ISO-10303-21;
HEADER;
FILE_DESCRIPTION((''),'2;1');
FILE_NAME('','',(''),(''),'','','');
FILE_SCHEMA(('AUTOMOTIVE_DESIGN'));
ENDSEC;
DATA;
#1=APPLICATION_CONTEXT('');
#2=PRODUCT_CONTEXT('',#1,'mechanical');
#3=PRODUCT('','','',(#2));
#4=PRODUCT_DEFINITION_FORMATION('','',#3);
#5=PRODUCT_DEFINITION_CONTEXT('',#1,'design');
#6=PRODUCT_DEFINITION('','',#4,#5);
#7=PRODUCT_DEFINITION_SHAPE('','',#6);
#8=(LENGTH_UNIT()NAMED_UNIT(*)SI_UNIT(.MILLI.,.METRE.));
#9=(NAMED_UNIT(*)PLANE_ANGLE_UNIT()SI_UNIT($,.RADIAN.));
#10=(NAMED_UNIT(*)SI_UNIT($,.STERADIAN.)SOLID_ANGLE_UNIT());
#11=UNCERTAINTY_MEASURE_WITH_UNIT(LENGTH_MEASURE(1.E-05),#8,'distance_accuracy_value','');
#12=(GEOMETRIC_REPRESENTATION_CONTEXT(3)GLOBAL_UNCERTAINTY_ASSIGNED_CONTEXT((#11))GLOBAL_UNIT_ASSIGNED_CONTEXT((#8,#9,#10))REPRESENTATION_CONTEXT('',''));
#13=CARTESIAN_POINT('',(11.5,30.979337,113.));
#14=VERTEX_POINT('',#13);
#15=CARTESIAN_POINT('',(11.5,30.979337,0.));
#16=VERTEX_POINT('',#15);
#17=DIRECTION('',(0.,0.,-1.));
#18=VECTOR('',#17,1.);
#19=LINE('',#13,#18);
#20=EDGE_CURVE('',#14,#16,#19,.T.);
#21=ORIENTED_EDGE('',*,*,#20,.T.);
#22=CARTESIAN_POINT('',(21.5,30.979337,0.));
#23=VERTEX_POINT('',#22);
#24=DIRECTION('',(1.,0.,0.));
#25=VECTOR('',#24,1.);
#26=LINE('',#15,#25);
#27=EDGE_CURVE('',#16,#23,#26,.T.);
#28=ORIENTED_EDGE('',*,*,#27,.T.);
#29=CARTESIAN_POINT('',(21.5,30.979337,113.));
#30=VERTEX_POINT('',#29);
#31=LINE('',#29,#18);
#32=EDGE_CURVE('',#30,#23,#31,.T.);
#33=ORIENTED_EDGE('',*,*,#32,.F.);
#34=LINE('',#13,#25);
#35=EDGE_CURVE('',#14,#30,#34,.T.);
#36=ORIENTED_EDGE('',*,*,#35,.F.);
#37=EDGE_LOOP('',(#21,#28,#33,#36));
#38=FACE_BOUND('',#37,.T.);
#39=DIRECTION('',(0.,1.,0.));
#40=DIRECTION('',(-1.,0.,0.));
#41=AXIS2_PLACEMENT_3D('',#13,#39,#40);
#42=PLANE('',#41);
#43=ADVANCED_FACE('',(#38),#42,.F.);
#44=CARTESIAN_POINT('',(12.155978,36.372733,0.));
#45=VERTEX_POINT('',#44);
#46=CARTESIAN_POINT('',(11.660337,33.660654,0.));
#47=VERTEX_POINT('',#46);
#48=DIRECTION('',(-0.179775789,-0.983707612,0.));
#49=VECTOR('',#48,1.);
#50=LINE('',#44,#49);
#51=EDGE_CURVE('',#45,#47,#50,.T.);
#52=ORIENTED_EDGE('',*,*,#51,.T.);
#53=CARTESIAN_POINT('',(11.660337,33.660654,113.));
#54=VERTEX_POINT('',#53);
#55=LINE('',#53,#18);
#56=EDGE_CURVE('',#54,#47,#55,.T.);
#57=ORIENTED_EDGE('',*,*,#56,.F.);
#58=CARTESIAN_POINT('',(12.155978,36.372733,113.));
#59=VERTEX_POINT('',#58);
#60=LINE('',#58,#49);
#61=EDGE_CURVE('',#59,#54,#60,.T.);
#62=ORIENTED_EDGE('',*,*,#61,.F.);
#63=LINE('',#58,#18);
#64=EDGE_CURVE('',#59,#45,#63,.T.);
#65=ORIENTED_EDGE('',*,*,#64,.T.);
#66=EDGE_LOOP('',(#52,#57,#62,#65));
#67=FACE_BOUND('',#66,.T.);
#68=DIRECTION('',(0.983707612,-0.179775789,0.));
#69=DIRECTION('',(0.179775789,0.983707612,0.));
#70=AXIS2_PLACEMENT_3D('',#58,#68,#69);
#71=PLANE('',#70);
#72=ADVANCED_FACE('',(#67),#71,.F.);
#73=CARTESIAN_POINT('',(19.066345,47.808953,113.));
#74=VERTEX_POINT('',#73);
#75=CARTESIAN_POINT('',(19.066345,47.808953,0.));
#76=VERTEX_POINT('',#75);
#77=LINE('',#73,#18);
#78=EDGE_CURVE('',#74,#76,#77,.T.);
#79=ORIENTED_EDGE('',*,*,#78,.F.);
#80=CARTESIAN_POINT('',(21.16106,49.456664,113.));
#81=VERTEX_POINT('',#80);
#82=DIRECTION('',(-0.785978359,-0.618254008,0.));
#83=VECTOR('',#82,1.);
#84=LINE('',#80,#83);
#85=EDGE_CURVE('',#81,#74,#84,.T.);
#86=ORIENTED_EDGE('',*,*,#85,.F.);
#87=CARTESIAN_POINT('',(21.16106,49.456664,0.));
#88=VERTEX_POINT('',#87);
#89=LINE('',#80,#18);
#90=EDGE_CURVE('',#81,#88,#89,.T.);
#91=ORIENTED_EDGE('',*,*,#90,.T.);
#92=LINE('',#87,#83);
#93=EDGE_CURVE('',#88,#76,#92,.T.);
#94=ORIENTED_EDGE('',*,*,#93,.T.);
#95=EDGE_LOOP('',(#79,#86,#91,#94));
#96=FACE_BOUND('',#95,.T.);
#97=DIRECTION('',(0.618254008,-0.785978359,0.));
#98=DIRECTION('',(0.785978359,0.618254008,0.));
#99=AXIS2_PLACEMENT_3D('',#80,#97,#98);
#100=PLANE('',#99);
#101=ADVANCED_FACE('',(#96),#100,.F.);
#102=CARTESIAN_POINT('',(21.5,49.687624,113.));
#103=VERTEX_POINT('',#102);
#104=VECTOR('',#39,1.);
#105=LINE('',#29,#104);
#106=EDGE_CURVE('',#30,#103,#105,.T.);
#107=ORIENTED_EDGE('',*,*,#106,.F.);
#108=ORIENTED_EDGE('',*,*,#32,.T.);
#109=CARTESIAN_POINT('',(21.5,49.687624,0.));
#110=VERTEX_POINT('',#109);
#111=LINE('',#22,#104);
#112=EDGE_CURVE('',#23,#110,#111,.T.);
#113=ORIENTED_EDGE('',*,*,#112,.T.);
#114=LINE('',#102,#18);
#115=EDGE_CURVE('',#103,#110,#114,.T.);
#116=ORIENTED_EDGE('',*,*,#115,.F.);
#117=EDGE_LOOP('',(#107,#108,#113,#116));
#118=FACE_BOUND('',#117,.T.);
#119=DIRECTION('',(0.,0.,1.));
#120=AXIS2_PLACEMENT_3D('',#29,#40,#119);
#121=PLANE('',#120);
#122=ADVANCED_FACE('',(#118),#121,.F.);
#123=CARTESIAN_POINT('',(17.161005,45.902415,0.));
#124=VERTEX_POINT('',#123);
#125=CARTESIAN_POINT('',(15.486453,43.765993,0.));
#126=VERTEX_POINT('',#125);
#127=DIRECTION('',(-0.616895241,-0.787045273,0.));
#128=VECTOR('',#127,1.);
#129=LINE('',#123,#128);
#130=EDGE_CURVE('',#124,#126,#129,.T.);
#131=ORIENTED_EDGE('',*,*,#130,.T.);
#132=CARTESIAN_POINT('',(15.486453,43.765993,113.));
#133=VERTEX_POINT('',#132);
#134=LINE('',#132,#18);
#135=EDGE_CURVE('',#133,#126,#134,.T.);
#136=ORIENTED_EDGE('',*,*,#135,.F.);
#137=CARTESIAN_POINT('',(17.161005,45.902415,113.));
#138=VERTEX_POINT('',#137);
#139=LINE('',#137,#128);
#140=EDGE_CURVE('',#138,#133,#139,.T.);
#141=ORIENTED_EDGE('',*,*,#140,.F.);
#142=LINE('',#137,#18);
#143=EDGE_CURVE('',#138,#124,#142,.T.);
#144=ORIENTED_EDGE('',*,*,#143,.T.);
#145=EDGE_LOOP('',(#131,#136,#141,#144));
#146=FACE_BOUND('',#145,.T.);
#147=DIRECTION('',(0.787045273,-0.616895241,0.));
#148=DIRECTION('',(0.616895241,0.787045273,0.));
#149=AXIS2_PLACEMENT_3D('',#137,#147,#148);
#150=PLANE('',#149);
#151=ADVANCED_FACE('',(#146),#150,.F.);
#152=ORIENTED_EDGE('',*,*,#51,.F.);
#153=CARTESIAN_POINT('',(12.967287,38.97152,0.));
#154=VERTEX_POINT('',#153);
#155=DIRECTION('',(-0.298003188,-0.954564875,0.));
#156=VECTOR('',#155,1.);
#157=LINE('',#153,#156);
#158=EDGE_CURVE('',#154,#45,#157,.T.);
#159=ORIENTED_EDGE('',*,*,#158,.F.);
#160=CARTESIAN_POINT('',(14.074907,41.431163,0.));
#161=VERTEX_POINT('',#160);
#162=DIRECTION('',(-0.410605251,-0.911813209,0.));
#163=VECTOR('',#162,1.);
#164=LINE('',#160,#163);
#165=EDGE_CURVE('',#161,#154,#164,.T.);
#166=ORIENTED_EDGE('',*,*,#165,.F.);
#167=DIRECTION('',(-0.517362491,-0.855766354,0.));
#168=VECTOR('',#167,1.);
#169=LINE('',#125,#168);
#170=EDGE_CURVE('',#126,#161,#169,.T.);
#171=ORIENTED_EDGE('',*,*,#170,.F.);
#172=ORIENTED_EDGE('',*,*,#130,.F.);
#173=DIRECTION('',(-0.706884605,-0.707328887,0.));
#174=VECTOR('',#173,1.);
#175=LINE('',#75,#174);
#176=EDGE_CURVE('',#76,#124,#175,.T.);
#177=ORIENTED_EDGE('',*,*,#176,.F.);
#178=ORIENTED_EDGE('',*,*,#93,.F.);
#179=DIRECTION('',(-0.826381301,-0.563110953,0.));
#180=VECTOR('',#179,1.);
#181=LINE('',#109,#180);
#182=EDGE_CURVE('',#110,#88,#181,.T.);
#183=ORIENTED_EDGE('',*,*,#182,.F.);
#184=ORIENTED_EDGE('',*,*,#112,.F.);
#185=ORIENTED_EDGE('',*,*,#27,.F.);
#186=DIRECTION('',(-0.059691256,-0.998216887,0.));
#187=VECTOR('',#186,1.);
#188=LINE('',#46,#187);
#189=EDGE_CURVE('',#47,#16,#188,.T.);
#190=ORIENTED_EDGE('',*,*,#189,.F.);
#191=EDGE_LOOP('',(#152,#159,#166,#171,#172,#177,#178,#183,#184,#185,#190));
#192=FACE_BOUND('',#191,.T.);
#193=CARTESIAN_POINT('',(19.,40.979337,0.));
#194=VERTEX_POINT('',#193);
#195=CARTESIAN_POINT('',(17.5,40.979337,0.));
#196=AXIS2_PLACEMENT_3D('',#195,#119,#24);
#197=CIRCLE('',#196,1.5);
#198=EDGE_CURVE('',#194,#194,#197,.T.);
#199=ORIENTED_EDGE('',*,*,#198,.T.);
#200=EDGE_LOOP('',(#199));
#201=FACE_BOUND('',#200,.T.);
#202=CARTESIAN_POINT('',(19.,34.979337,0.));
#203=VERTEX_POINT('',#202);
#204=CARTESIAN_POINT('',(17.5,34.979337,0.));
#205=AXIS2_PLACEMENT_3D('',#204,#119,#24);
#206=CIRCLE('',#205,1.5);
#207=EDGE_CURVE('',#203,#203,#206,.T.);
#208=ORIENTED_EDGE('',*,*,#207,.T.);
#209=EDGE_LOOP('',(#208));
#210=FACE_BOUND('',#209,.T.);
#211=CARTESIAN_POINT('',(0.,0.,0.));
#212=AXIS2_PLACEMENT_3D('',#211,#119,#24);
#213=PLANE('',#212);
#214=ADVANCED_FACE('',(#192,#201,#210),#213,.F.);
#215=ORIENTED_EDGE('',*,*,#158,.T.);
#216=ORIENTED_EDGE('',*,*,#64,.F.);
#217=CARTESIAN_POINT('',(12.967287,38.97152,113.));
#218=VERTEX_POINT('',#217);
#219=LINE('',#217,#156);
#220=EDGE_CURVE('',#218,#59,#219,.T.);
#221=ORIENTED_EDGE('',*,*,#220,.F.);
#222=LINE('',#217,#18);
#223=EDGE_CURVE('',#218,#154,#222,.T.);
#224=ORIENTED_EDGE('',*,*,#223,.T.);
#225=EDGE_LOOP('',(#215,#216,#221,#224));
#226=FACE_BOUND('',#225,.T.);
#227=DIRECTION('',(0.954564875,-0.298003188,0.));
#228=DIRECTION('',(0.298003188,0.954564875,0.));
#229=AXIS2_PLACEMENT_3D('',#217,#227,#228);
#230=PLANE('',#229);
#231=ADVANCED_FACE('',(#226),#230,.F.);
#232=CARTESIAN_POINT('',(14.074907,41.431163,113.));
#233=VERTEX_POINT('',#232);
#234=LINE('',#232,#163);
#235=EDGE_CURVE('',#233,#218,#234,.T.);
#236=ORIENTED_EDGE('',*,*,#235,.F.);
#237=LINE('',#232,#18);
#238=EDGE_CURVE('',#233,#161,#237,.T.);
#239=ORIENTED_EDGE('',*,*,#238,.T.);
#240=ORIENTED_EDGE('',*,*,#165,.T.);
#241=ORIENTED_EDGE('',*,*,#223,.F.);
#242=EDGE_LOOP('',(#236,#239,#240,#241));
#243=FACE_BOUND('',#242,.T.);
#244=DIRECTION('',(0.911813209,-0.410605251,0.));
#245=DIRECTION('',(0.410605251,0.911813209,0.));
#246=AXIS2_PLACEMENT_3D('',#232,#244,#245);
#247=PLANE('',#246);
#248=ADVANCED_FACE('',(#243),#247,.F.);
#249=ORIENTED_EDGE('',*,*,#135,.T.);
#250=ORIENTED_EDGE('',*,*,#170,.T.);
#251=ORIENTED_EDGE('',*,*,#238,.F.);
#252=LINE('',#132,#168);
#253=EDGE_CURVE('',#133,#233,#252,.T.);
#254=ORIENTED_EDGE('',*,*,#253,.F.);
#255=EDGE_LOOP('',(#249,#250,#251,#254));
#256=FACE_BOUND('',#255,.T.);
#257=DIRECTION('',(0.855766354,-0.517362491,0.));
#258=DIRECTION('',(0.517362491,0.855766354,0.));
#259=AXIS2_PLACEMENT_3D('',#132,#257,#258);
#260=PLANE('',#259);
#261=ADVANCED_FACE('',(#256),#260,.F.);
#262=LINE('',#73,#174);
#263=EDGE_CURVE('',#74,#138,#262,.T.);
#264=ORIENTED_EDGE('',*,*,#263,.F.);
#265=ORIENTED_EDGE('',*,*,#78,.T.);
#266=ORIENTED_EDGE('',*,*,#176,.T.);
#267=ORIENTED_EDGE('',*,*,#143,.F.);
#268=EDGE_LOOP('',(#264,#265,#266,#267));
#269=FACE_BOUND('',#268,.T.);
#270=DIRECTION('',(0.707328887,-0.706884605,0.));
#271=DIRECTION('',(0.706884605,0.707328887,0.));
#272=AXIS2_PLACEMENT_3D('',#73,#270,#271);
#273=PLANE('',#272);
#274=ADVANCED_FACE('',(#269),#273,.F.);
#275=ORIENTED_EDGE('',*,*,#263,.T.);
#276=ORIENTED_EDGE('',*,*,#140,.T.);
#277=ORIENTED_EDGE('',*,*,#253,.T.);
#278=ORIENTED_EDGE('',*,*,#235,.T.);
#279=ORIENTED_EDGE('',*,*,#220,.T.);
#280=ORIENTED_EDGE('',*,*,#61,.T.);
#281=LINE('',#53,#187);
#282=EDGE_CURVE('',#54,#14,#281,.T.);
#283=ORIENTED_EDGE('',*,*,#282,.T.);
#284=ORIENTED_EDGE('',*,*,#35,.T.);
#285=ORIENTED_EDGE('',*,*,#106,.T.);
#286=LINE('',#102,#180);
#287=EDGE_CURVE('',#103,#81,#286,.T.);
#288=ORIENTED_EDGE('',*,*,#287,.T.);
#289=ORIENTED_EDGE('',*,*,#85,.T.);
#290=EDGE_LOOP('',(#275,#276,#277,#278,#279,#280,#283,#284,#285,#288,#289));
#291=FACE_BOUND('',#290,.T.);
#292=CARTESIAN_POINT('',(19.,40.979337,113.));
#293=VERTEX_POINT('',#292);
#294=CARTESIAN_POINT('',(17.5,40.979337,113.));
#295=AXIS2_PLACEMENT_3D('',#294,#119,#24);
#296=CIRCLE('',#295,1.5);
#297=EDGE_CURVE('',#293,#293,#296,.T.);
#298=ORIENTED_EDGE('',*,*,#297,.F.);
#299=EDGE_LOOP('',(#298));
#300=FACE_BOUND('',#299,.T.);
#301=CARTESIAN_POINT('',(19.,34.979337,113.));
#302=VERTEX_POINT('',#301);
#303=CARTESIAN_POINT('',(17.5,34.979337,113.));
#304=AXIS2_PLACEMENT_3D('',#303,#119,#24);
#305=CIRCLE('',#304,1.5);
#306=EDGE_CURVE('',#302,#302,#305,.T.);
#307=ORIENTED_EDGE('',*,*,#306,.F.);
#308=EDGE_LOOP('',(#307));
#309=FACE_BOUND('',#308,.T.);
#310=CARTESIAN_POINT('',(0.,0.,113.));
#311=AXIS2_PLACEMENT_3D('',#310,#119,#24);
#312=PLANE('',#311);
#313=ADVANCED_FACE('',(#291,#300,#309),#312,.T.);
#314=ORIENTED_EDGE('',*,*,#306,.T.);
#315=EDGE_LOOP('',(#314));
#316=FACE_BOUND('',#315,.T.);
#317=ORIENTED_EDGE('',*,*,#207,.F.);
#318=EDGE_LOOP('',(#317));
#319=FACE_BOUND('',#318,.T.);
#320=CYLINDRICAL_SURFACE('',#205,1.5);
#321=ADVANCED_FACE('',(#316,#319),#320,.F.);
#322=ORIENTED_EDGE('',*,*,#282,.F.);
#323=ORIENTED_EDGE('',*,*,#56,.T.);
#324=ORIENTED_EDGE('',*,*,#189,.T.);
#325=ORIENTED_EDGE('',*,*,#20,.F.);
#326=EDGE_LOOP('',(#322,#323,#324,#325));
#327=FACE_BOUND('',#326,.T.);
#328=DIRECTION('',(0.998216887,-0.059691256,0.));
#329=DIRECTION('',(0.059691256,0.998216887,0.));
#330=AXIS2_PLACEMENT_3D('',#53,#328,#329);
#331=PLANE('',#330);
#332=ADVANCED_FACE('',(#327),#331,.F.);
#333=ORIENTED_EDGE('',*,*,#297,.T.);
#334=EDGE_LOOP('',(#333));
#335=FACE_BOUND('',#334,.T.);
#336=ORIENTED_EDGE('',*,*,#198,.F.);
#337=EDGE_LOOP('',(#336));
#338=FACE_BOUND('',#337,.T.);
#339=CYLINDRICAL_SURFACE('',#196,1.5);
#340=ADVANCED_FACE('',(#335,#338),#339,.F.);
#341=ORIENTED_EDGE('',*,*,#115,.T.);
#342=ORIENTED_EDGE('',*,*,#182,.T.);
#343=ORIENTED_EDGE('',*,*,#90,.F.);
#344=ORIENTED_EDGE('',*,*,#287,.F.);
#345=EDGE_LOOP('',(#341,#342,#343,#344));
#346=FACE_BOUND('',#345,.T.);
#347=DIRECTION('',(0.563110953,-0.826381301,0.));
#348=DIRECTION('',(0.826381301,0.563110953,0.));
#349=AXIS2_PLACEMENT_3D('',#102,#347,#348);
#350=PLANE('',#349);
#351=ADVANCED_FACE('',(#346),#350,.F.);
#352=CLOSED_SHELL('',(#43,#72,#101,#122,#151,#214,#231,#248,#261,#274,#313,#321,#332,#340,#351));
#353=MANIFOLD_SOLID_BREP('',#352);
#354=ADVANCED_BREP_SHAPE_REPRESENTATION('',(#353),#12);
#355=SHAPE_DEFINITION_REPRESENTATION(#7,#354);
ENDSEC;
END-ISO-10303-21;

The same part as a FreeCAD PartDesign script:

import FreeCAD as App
import Part
import Sketcher

V = App.Vector

doc = App.newDocument("Part")
params = doc.addObject("Spreadsheet::Sheet", "Params")
for row, (alias, value) in enumerate([
    ("sketch1_width", "10 mm"),
    ("pad1_length", "113 mm"),
    ("sketch2_diameter", "3 mm"),
    ("pocket1_length", "113 mm"),
], start=1):
    params.set(f"A{row}", alias)
    params.set(f"B{row}", "=" + value)
    params.setAlias(f"B{row}", alias)

body = doc.addObject("PartDesign::Body", "Body")

sketch1 = doc.addObject("Sketcher::SketchObject", "Sketch")
body.addObject(sketch1)
sketch1.AttachmentSupport = (doc.XY_Plane, [""])
sketch1.MapMode = "FlatFace"
sketch1.addGeometry([
    Part.LineSegment(V(11.5, 30.979337, 0), V(21.5, 30.979337, 0)),
    Part.LineSegment(V(21.5, 30.979337, 0), V(21.5, 49.687624, 0)),
    Part.LineSegment(V(21.5, 49.687624, 0), V(21.16106, 49.456664, 0)),
    Part.LineSegment(V(21.16106, 49.456664, 0), V(19.066345, 47.808953, 0)),
    Part.LineSegment(V(19.066345, 47.808953, 0), V(17.161005, 45.902415, 0)),
    Part.LineSegment(V(17.161005, 45.902415, 0), V(15.486453, 43.765993, 0)),
    Part.LineSegment(V(15.486453, 43.765993, 0), V(14.074907, 41.431163, 0)),
    Part.LineSegment(V(14.074907, 41.431163, 0), V(12.967287, 38.97152, 0)),
    Part.LineSegment(V(12.967287, 38.97152, 0), V(12.155978, 36.372733, 0)),
    Part.LineSegment(V(12.155978, 36.372733, 0), V(11.660337, 33.660654, 0)),
    Part.LineSegment(V(11.660337, 33.660654, 0), V(11.5, 30.979337, 0)),
], False)
sketch1.addConstraint([
    Sketcher.Constraint("Coincident", 0, 2, 1, 1),
    Sketcher.Constraint("Coincident", 1, 2, 2, 1),
    Sketcher.Constraint("Coincident", 2, 2, 3, 1),
    Sketcher.Constraint("Coincident", 3, 2, 4, 1),
    Sketcher.Constraint("Coincident", 4, 2, 5, 1),
    Sketcher.Constraint("Coincident", 5, 2, 6, 1),
    Sketcher.Constraint("Coincident", 6, 2, 7, 1),
    Sketcher.Constraint("Coincident", 7, 2, 8, 1),
    Sketcher.Constraint("Coincident", 8, 2, 9, 1),
    Sketcher.Constraint("Coincident", 9, 2, 10, 1),
    Sketcher.Constraint("Coincident", 10, 2, 0, 1),
    Sketcher.Constraint("Horizontal", 0),
    Sketcher.Constraint("Vertical", 1),
    Sketcher.Constraint("DistanceX", 0, 1, 0, 2, 10.0),
    Sketcher.Constraint("DistanceX", -1, 1, 0, 2, 21.5),
    Sketcher.Constraint("DistanceX", 6, 2, 4, 2, 3.086098),
    Sketcher.Constraint("DistanceY", 6, 2, 2, 2, 8.025502),
    Sketcher.Constraint("Distance", 2, 0.41015),
    Sketcher.Constraint("Distance", 6, 2.728351),
    Sketcher.Constraint("Distance", 7, 2.697529),
    Sketcher.Constraint("DistanceY", 1, 1, 1, 2, 18.708287),
    Sketcher.Constraint("DistanceX", -1, 1, 2, 2, 21.16106),
    Sketcher.Constraint("DistanceY", -1, 1, 7, 2, 38.97152),
    Sketcher.Constraint("DistanceX", -1, 1, 8, 2, 12.155978),
    Sketcher.Constraint("DistanceY", 3, 2, 2, 2, 1.647711),
    Sketcher.Constraint("DistanceX", 4, 2, 3, 2, 1.90534),
    Sketcher.Constraint("DistanceY", 4, 2, 2, 2, 3.554249),
    Sketcher.Constraint("DistanceX", 5, 2, 4, 2, 1.674552),
    Sketcher.Constraint("DistanceX", 7, 2, 6, 2, 1.10762),
    Sketcher.Constraint("DistanceX", 8, 2, 7, 2, 0.811309),
    Sketcher.Constraint("DistanceY", 8, 2, 6, 2, 5.058429),
    Sketcher.Constraint("DistanceX", 9, 2, 8, 2, 0.495641),
    Sketcher.Constraint("DistanceY", 9, 2, 8, 2, 2.712079),
])
sketch1.setExpression("Constraints[13]", "Params.sketch1_width")
pad1 = doc.addObject("PartDesign::Pad", "Pad")
body.addObject(pad1)
pad1.Profile = sketch1
pad1.setExpression("Length", "Params.pad1_length")

sketch2 = doc.addObject("Sketcher::SketchObject", "Sketch001")
body.addObject(sketch2)
sketch2.AttachmentSupport = (doc.XY_Plane, [""])
sketch2.MapMode = "FlatFace"
sketch2.AttachmentOffset = App.Placement(V(0, 0, 113), App.Rotation())
sketch2.addGeometry([
    Part.Circle(V(17.5, 34.979337, 0), V(0, 0, 1), 1.5),
    Part.Circle(V(17.5, 40.979337, 0), V(0, 0, 1), 1.5),
], False)
sketch2.addConstraint([
    Sketcher.Constraint("Equal", 0, 1),
    Sketcher.Constraint("Vertical", 0, 3, 1, 3),
    Sketcher.Constraint("Diameter", 0, 3.0),
    Sketcher.Constraint("DistanceY", 0, 3, 1, 3, 6.0),
    Sketcher.Constraint("DistanceX", -1, 1, 0, 3, 17.5),
    Sketcher.Constraint("DistanceY", -1, 1, 0, 3, 34.979337),
])
sketch2.setExpression("Constraints[2]", "Params.sketch2_diameter")
pocket1 = doc.addObject("PartDesign::Pocket", "Pocket")
body.addObject(pocket1)
pocket1.Profile = sketch2
pocket1.setExpression("Length", "Params.pocket1_length")

doc.recompute()
